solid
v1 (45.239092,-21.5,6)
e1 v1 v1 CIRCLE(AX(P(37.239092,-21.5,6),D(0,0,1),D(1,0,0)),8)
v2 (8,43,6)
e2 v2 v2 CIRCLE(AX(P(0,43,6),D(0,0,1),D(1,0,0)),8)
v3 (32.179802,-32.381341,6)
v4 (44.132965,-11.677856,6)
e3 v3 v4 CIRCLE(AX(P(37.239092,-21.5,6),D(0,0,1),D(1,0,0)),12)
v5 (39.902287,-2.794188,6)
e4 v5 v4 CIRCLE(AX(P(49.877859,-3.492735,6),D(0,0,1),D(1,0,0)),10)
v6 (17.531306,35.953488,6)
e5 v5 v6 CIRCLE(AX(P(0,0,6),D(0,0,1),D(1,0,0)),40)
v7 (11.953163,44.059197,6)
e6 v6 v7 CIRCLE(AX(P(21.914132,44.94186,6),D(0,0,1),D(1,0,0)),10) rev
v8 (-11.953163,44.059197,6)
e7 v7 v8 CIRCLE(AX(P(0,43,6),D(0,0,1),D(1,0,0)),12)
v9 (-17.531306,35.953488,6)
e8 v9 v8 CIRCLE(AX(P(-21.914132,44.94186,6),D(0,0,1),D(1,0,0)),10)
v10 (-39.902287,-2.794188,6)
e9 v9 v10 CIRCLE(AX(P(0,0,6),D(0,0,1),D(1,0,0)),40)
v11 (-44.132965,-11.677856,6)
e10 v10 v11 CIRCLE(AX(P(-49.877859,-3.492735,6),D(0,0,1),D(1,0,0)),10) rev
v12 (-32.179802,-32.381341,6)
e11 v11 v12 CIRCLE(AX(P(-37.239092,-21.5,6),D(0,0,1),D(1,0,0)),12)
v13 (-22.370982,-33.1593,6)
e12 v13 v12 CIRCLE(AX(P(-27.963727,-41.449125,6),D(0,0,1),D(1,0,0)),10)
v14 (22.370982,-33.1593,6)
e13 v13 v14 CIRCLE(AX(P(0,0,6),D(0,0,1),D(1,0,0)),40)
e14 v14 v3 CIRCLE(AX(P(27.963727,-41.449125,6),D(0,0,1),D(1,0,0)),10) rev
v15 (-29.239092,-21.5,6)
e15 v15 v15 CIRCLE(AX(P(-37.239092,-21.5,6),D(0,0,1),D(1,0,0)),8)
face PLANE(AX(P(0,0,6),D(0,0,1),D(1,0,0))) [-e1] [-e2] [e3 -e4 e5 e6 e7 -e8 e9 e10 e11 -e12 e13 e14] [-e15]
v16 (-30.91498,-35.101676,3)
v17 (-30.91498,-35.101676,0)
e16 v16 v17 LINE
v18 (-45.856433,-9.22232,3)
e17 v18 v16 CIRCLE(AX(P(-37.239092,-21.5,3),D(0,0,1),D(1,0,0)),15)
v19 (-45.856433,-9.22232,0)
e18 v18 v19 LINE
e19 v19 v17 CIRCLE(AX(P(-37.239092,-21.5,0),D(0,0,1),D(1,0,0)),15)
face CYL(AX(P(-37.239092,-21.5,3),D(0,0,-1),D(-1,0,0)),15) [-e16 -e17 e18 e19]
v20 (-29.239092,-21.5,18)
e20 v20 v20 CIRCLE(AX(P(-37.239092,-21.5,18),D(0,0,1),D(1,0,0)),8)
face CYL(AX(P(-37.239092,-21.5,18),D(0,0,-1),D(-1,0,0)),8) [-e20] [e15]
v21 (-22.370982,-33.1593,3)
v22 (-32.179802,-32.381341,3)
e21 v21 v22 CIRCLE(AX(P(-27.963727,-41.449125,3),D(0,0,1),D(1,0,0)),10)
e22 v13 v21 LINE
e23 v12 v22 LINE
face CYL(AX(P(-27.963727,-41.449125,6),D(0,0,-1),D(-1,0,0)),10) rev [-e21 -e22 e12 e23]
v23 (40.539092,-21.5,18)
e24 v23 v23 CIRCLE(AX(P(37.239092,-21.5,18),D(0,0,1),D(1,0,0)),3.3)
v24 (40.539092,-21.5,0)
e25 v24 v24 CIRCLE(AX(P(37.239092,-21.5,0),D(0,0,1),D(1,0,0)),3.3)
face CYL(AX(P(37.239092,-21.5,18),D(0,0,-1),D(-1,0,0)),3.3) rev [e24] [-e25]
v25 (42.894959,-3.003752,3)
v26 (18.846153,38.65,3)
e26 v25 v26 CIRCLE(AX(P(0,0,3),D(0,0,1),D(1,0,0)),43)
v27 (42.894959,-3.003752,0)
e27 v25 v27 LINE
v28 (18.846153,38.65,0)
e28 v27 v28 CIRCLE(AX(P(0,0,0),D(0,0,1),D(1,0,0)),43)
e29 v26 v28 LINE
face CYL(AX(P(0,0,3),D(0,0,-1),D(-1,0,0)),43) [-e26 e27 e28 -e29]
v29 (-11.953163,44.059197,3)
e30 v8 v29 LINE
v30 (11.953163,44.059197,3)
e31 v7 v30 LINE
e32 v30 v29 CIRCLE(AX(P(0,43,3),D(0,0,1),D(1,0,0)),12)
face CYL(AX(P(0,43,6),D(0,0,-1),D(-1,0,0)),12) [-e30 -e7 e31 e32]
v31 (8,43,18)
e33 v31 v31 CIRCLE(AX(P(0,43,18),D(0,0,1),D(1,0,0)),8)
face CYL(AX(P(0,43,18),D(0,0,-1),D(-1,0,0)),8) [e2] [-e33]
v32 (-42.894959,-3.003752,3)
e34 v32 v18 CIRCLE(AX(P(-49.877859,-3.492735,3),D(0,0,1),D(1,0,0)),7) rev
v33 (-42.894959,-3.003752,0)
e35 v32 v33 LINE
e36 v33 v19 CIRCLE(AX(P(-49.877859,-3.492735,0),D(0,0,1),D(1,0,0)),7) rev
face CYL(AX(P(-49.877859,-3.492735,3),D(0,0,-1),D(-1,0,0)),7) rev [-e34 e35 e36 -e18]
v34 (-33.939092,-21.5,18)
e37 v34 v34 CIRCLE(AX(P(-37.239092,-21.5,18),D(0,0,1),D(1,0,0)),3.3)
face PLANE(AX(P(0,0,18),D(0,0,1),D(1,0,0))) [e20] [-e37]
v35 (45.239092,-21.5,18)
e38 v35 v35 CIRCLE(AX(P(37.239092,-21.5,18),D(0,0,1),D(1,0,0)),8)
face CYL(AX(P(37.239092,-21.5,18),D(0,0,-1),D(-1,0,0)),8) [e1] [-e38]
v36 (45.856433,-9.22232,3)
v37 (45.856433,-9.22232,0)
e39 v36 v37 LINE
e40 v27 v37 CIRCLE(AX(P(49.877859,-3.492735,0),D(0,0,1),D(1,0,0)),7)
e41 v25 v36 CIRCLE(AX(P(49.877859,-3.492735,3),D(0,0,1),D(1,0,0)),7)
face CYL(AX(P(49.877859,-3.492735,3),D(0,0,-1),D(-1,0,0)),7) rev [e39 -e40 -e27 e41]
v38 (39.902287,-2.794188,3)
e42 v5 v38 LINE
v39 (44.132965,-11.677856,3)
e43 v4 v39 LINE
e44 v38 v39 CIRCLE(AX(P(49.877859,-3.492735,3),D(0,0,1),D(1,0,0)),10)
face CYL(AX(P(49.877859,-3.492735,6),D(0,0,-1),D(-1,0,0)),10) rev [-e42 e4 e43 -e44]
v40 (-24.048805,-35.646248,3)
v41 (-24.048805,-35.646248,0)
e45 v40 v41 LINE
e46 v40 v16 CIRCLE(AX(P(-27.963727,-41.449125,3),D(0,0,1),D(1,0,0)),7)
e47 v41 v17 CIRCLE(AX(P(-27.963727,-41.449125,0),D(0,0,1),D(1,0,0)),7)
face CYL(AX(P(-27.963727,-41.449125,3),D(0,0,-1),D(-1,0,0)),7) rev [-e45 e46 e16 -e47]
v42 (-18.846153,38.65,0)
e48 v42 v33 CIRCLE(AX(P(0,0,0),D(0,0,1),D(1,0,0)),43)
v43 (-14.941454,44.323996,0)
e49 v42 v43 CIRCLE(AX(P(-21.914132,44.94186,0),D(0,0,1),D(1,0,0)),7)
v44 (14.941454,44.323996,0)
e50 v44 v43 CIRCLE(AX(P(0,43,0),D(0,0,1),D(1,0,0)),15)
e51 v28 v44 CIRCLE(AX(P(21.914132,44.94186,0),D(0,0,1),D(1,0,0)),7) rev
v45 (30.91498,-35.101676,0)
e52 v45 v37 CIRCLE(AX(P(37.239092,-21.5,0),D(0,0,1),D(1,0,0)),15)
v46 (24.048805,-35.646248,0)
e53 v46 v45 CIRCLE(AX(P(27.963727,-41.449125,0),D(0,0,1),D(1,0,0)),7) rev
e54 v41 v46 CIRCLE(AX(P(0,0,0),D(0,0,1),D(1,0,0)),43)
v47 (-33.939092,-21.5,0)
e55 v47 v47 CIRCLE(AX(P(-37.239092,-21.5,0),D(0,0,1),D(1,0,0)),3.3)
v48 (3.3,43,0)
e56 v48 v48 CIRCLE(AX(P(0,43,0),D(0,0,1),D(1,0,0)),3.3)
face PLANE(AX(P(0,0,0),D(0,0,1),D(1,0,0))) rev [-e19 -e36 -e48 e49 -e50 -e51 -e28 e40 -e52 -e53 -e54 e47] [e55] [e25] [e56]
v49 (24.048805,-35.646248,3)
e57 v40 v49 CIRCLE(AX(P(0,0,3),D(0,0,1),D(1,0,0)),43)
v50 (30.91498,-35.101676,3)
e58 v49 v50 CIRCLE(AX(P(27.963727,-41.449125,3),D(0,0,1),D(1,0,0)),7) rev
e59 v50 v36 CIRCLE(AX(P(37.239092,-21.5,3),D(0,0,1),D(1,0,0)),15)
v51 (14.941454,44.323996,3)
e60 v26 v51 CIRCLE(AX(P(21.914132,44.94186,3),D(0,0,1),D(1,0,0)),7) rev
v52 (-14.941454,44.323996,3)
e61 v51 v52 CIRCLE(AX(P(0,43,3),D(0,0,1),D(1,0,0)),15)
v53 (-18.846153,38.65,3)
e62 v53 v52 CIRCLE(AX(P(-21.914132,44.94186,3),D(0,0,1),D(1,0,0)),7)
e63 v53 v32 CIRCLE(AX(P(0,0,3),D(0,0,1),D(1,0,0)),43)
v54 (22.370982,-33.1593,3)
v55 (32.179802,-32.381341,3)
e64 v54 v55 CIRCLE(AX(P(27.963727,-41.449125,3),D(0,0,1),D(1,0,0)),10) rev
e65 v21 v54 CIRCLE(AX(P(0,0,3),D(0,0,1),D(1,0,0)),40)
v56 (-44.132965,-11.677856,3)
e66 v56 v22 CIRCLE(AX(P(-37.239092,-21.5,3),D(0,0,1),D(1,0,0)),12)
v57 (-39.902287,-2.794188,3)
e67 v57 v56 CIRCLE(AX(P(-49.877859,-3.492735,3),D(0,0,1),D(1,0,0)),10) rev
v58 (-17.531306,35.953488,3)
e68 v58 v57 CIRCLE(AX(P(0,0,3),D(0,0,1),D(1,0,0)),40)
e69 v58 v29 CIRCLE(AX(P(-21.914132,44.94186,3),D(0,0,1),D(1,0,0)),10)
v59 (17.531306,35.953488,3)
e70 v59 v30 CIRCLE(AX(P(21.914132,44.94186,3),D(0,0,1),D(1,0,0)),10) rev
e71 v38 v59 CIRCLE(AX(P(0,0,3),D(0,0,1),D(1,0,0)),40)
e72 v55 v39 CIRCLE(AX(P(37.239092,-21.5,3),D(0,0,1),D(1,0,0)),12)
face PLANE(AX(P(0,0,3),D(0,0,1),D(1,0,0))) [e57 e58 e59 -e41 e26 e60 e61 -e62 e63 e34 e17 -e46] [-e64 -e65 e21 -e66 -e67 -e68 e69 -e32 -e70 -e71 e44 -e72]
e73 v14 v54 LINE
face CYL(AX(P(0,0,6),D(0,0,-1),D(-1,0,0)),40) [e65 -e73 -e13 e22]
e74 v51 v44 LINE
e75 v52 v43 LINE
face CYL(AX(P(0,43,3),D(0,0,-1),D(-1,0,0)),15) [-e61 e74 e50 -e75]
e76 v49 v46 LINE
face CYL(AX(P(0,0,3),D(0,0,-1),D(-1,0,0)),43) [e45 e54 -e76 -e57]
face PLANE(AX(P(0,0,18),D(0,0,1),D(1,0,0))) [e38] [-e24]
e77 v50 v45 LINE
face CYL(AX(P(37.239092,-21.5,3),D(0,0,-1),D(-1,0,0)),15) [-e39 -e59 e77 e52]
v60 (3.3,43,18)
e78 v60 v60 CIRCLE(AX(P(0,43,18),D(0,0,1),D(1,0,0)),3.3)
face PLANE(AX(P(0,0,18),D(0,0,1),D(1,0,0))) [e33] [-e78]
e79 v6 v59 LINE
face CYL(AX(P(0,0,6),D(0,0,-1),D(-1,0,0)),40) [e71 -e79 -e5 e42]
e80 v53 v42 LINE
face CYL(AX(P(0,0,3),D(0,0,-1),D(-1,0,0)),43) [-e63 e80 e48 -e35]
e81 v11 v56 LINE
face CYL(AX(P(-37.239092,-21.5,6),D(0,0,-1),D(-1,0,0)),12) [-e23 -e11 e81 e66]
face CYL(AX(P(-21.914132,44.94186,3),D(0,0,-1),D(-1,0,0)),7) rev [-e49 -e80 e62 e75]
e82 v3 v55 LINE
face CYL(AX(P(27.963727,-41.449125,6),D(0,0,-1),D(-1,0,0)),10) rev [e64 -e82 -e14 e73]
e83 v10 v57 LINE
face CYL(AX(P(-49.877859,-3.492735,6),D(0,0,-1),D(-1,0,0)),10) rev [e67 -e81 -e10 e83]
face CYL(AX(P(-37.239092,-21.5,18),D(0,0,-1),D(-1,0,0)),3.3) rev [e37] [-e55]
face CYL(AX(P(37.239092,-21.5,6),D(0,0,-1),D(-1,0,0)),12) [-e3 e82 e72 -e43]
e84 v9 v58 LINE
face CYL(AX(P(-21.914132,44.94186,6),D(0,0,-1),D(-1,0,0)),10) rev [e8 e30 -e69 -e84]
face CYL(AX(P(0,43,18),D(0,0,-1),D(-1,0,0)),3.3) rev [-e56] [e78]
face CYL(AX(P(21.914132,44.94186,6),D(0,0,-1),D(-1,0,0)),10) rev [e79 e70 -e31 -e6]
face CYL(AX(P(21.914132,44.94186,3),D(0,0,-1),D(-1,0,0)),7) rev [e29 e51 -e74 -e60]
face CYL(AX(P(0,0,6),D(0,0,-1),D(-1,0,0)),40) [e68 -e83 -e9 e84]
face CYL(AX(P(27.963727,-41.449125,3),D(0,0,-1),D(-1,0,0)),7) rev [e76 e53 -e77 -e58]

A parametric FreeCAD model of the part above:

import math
import FreeCAD as App
import Part
import Sketcher

doc = App.newDocument("Part")
body = doc.addObject("PartDesign::Body", "Body")

sketch1 = body.newObject("Sketcher::SketchObject", "Sketch")
sketch1.AttachmentSupport = (doc.getObject("XY_Plane"), [""])
sketch1.MapMode = "FlatFace"
sketch1.addGeometry(Part.ArcOfCircle(Part.Circle(App.Vector(49.877859, -3.492735, 0), App.Vector(0, 0, 1), 7), math.radians(175.994358), math.radians(234.936119)), False)
sketch1.addGeometry(Part.ArcOfCircle(Part.Circle(App.Vector(0, 0, 0), App.Vector(0, 0, 1), 43), math.radians(-4.005642), math.radians(64.005642)), False)
sketch1.addGeometry(Part.ArcOfCircle(Part.Circle(App.Vector(21.914132, 44.94186, 0), App.Vector(0, 0, 1), 7), math.radians(-174.936119), math.radians(-115.994358)), False)
sketch1.addGeometry(Part.ArcOfCircle(Part.Circle(App.Vector(0, 43, 0), App.Vector(0, 0, 1), 15), math.radians(5.063881), math.radians(174.936119)), False)
sketch1.addGeometry(Part.ArcOfCircle(Part.Circle(App.Vector(-21.914132, 44.94186, 0), App.Vector(0, 0, 1), 7), math.radians(-64.005642), math.radians(-5.063881)), False)
sketch1.addGeometry(Part.ArcOfCircle(Part.Circle(App.Vector(0, 0, 0), App.Vector(0, 0, 1), 43), math.radians(115.994358), math.radians(184.005642)), False)
sketch1.addGeometry(Part.ArcOfCircle(Part.Circle(App.Vector(-49.877859, -3.492735, 0), App.Vector(0, 0, 1), 7), math.radians(-54.936119), math.radians(4.005642)), False)
sketch1.addGeometry(Part.ArcOfCircle(Part.Circle(App.Vector(-37.239092, -21.5, 0), App.Vector(0, 0, 1), 15), math.radians(125.063881), math.radians(294.936119)), False)
sketch1.addGeometry(Part.ArcOfCircle(Part.Circle(App.Vector(-27.963727, -41.449125, 0), App.Vector(0, 0, 1), 7), math.radians(55.994358), math.radians(114.936119)), False)
sketch1.addGeometry(Part.ArcOfCircle(Part.Circle(App.Vector(0, 0, 0), App.Vector(0, 0, 1), 43), math.radians(-124.005642), math.radians(-55.994358)), False)
sketch1.addGeometry(Part.ArcOfCircle(Part.Circle(App.Vector(27.963727, -41.449125, 0), App.Vector(0, 0, 1), 7), math.radians(65.063881), math.radians(124.005642)), False)
sketch1.addGeometry(Part.ArcOfCircle(Part.Circle(App.Vector(37.239092, -21.5, 0), App.Vector(0, 0, 1), 15), math.radians(-114.936119), math.radians(54.936119)), False)
sketch1.addGeometry(Part.ArcOfCircle(Part.Circle(App.Vector(49.877859, -3.492735, 0), App.Vector(0, 0, 1), 10), math.radians(175.994358), math.radians(234.936119)), False)
sketch1.addGeometry(Part.ArcOfCircle(Part.Circle(App.Vector(37.239092, -21.5, 0), App.Vector(0, 0, 1), 12), math.radians(-114.936119), math.radians(54.936119)), False)
sketch1.addGeometry(Part.ArcOfCircle(Part.Circle(App.Vector(27.963727, -41.449125, 0), App.Vector(0, 0, 1), 10), math.radians(65.063881), math.radians(124.005642)), False)
sketch1.addGeometry(Part.ArcOfCircle(Part.Circle(App.Vector(0, 0, 0), App.Vector(0, 0, 1), 40), math.radians(-124.005642), math.radians(-55.994358)), False)
sketch1.addGeometry(Part.ArcOfCircle(Part.Circle(App.Vector(-27.963727, -41.449125, 0), App.Vector(0, 0, 1), 10), math.radians(55.994358), math.radians(114.936119)), False)
sketch1.addGeometry(Part.ArcOfCircle(Part.Circle(App.Vector(-37.239092, -21.5, 0), App.Vector(0, 0, 1), 12), math.radians(125.063881), math.radians(294.936119)), False)
sketch1.addGeometry(Part.ArcOfCircle(Part.Circle(App.Vector(-49.877859, -3.492735, 0), App.Vector(0, 0, 1), 10), math.radians(-54.936119), math.radians(4.005642)), False)
sketch1.addGeometry(Part.ArcOfCircle(Part.Circle(App.Vector(0, 0, 0), App.Vector(0, 0, 1), 40), math.radians(115.994358), math.radians(184.005642)), False)
sketch1.addGeometry(Part.ArcOfCircle(Part.Circle(App.Vector(-21.914132, 44.94186, 0), App.Vector(0, 0, 1), 10), math.radians(-64.005642), math.radians(-5.063881)), False)
sketch1.addGeometry(Part.ArcOfCircle(Part.Circle(App.Vector(0, 43, 0), App.Vector(0, 0, 1), 12), math.radians(5.063881), math.radians(174.936119)), False)
sketch1.addGeometry(Part.ArcOfCircle(Part.Circle(App.Vector(21.914132, 44.94186, 0), App.Vector(0, 0, 1), 10), math.radians(-174.936119), math.radians(-115.994358)), False)
sketch1.addGeometry(Part.ArcOfCircle(Part.Circle(App.Vector(0, 0, 0), App.Vector(0, 0, 1), 40), math.radians(-4.005642), math.radians(64.005642)), False)
sketch1.addConstraint(Sketcher.Constraint("Tangent", 0, 1, 1, 1))
sketch1.addConstraint(Sketcher.Constraint("Tangent", 1, 2, 2, 2))
sketch1.addConstraint(Sketcher.Constraint("Tangent", 2, 1, 3, 1))
sketch1.addConstraint(Sketcher.Constraint("Tangent", 3, 2, 4, 2))
sketch1.addConstraint(Sketcher.Constraint("Tangent", 4, 1, 5, 1))
sketch1.addConstraint(Sketcher.Constraint("Tangent", 5, 2, 6, 2))
sketch1.addConstraint(Sketcher.Constraint("Tangent", 6, 1, 7, 1))
sketch1.addConstraint(Sketcher.Constraint("Tangent", 7, 2, 8, 2))
sketch1.addConstraint(Sketcher.Constraint("Tangent", 8, 1, 9, 1))
sketch1.addConstraint(Sketcher.Constraint("Tangent", 9, 2, 10, 2))
sketch1.addConstraint(Sketcher.Constraint("Tangent", 10, 1, 11, 1))
sketch1.addConstraint(Sketcher.Constraint("Tangent", 11, 2, 0, 2))
sketch1.addConstraint(Sketcher.Constraint("Tangent", 12, 2, 13, 2))
sketch1.addConstraint(Sketcher.Constraint("Tangent", 13, 1, 14, 1))
sketch1.addConstraint(Sketcher.Constraint("Tangent", 14, 2, 15, 2))
sketch1.addConstraint(Sketcher.Constraint("Tangent", 15, 1, 16, 1))
sketch1.addConstraint(Sketcher.Constraint("Tangent", 16, 2, 17, 2))
sketch1.addConstraint(Sketcher.Constraint("Tangent", 17, 1, 18, 1))
sketch1.addConstraint(Sketcher.Constraint("Tangent", 18, 2, 19, 2))
sketch1.addConstraint(Sketcher.Constraint("Tangent", 19, 1, 20, 1))
sketch1.addConstraint(Sketcher.Constraint("Tangent", 20, 2, 21, 2))
sketch1.addConstraint(Sketcher.Constraint("Tangent", 21, 1, 22, 1))
sketch1.addConstraint(Sketcher.Constraint("Tangent", 22, 2, 23, 2))
sketch1.addConstraint(Sketcher.Constraint("Tangent", 23, 1, 12, 1))
sketch1.addConstraint(Sketcher.Constraint("Coincident", 1, 3, -1, 1))
sketch1.addConstraint(Sketcher.Constraint("Coincident", 5, 3, -1, 1))
sketch1.addConstraint(Sketcher.Constraint("Coincident", 9, 3, -1, 1))
sketch1.addConstraint(Sketcher.Constraint("Coincident", 15, 3, -1, 1))
sketch1.addConstraint(Sketcher.Constraint("Coincident", 19, 3, -1, 1))
sketch1.addConstraint(Sketcher.Constraint("Coincident", 23, 3, -1, 1))
sketch1.addConstraint(Sketcher.Constraint("Coincident", 12, 3, 0, 3))
sketch1.addConstraint(Sketcher.Constraint("Coincident", 13, 3, 11, 3))
sketch1.addConstraint(Sketcher.Constraint("Coincident", 14, 3, 10, 3))
sketch1.addConstraint(Sketcher.Constraint("Coincident", 16, 3, 8, 3))
sketch1.addConstraint(Sketcher.Constraint("Coincident", 17, 3, 7, 3))
sketch1.addConstraint(Sketcher.Constraint("Coincident", 18, 3, 6, 3))
sketch1.addConstraint(Sketcher.Constraint("Coincident", 20, 3, 4, 3))
sketch1.addConstraint(Sketcher.Constraint("Coincident", 21, 3, 3, 3))
sketch1.addConstraint(Sketcher.Constraint("Equal", 0, 2))
sketch1.addConstraint(Sketcher.Constraint("Equal", 2, 4))
sketch1.addConstraint(Sketcher.Constraint("Equal", 1, 5))
sketch1.addConstraint(Sketcher.Constraint("Equal", 4, 6))
sketch1.addConstraint(Sketcher.Constraint("Equal", 3, 7))
sketch1.addConstraint(Sketcher.Constraint("Equal", 6, 8))
sketch1.addConstraint(Sketcher.Constraint("Equal", 5, 9))
sketch1.addConstraint(Sketcher.Constraint("Equal", 8, 10))
sketch1.addConstraint(Sketcher.Constraint("Equal", 7, 11))
sketch1.addConstraint(Sketcher.Constraint("Equal", 20, 22))
sketch1.addConstraint(Sketcher.Constraint("Symmetric", 7, 3, 11, 3, -2))
sketch1.addConstraint(Sketcher.Constraint("PointOnObject", 3, 3, -2))
sketch1.addConstraint(Sketcher.Constraint("Radius", 0, 7.0))
sketch1.addConstraint(Sketcher.Constraint("Radius", 1, 43.0))
sketch1.addConstraint(Sketcher.Constraint("Radius", 3, 15.0))
sketch1.addConstraint(Sketcher.Constraint("Radius", 12, 10.0))
sketch1.addConstraint(Sketcher.Constraint("DistanceY", -1, 1, 3, 3, 43.0))
sketch1.addConstraint(Sketcher.Constraint("DistanceY", 7, 3, -1, 1, 21.5))
sketch1.addConstraint(Sketcher.Constraint("DistanceX", 14, 2, 10, 1, 8.543998))
pad1 = body.newObject("PartDesign::Pad", "Pad")
pad1.Profile = sketch1
pad1.Length = 3

sketch2 = body.newObject("Sketcher::SketchObject", "Sketch001")
sketch2.AttachmentSupport = (doc.getObject("XY_Plane"), [""])
sketch2.MapMode = "FlatFace"
sketch2.addGeometry(Part.ArcOfCircle(Part.Circle(App.Vector(49.877859, -3.492735, 0), App.Vector(0, 0, 1), 10), math.radians(175.994358), math.radians(234.936119)), False)
sketch2.addGeometry(Part.ArcOfCircle(Part.Circle(App.Vector(0, 0, 0), App.Vector(0, 0, 1), 40), math.radians(-4.005642), math.radians(64.005642)), False)
sketch2.addGeometry(Part.ArcOfCircle(Part.Circle(App.Vector(21.914132, 44.94186, 0), App.Vector(0, 0, 1), 10), math.radians(-174.936119), math.radians(-115.994358)), False)
sketch2.addGeometry(Part.ArcOfCircle(Part.Circle(App.Vector(0, 43, 0), App.Vector(0, 0, 1), 12), math.radians(5.063881), math.radians(174.936119)), False)
sketch2.addGeometry(Part.ArcOfCircle(Part.Circle(App.Vector(-21.914132, 44.94186, 0), App.Vector(0, 0, 1), 10), math.radians(-64.005642), math.radians(-5.063881)), False)
sketch2.addGeometry(Part.ArcOfCircle(Part.Circle(App.Vector(0, 0, 0), App.Vector(0, 0, 1), 40), math.radians(115.994358), math.radians(184.005642)), False)
sketch2.addGeometry(Part.ArcOfCircle(Part.Circle(App.Vector(-49.877859, -3.492735, 0), App.Vector(0, 0, 1), 10), math.radians(-54.936119), math.radians(4.005642)), False)
sketch2.addGeometry(Part.ArcOfCircle(Part.Circle(App.Vector(-37.239092, -21.5, 0), App.Vector(0, 0, 1), 12), math.radians(125.063881), math.radians(294.936119)), False)
sketch2.addGeometry(Part.ArcOfCircle(Part.Circle(App.Vector(-27.963727, -41.449125, 0), App.Vector(0, 0, 1), 10), math.radians(55.994358), math.radians(114.936119)), False)
sketch2.addGeometry(Part.ArcOfCircle(Part.Circle(App.Vector(0, 0, 0), App.Vector(0, 0, 1), 40), math.radians(-124.005642), math.radians(-55.994358)), False)
sketch2.addGeometry(Part.ArcOfCircle(Part.Circle(App.Vector(27.963727, -41.449125, 0), App.Vector(0, 0, 1), 10), math.radians(65.063881), math.radians(124.005642)), False)
sketch2.addGeometry(Part.ArcOfCircle(Part.Circle(App.Vector(37.239092, -21.5, 0), App.Vector(0, 0, 1), 12), math.radians(-114.936119), math.radians(54.936119)), False)
sketch2.addGeometry(Part.Circle(App.Vector(37.239092, -21.5, 0), App.Vector(0, 0, 1), 8), False)
sketch2.addGeometry(Part.Circle(App.Vector(-37.239092, -21.5, 0), App.Vector(0, 0, 1), 8), False)
sketch2.addGeometry(Part.Circle(App.Vector(0, 43, 0), App.Vector(0, 0, 1), 8), False)
sketch2.addConstraint(Sketcher.Constraint("Tangent", 0, 1, 1, 1))
sketch2.addConstraint(Sketcher.Constraint("Tangent", 1, 2, 2, 2))
sketch2.addConstraint(Sketcher.Constraint("Tangent", 2, 1, 3, 1))
sketch2.addConstraint(Sketcher.Constraint("Tangent", 3, 2, 4, 2))
sketch2.addConstraint(Sketcher.Constraint("Tangent", 4, 1, 5, 1))
sketch2.addConstraint(Sketcher.Constraint("Tangent", 5, 2, 6, 2))
sketch2.addConstraint(Sketcher.Constraint("Tangent", 6, 1, 7, 1))
sketch2.addConstraint(Sketcher.Constraint("Tangent", 7, 2, 8, 2))
sketch2.addConstraint(Sketcher.Constraint("Tangent", 8, 1, 9, 1))
sketch2.addConstraint(Sketcher.Constraint("Tangent", 9, 2, 10, 2))
sketch2.addConstraint(Sketcher.Constraint("Tangent", 10, 1, 11, 1))
sketch2.addConstraint(Sketcher.Constraint("Tangent", 11, 2, 0, 2))
sketch2.addConstraint(Sketcher.Constraint("Coincident", 1, 3, -1, 1))
sketch2.addConstraint(Sketcher.Constraint("Coincident", 5, 3, -1, 1))
sketch2.addConstraint(Sketcher.Constraint("Coincident", 9, 3, -1, 1))
sketch2.addConstraint(Sketcher.Constraint("Coincident", 12, 3, 11, 3))
sketch2.addConstraint(Sketcher.Constraint("Coincident", 13, 3, 7, 3))
sketch2.addConstraint(Sketcher.Constraint("Coincident", 14, 3, 3, 3))
sketch2.addConstraint(Sketcher.Constraint("Equal", 0, 2))
sketch2.addConstraint(Sketcher.Constraint("Equal", 2, 4))
sketch2.addConstraint(Sketcher.Constraint("Equal", 1, 5))
sketch2.addConstraint(Sketcher.Constraint("Equal", 4, 6))
sketch2.addConstraint(Sketcher.Constraint("Equal", 3, 7))
sketch2.addConstraint(Sketcher.Constraint("Equal", 6, 8))
sketch2.addConstraint(Sketcher.Constraint("Equal", 5, 9))
sketch2.addConstraint(Sketcher.Constraint("Equal", 8, 10))
sketch2.addConstraint(Sketcher.Constraint("Equal", 7, 11))
sketch2.addConstraint(Sketcher.Constraint("Equal", 12, 13))
sketch2.addConstraint(Sketcher.Constraint("Equal", 13, 14))
sketch2.addConstraint(Sketcher.Constraint("Symmetric", 7, 3, 11, 3, -2))
sketch2.addConstraint(Sketcher.Constraint("PointOnObject", 3, 3, -2))
sketch2.addConstraint(Sketcher.Constraint("Diameter", 12, 16.0))
sketch2.addConstraint(Sketcher.Constraint("Radius", 0, 10.0))
sketch2.addConstraint(Sketcher.Constraint("Radius", 1, 40.0))
sketch2.addConstraint(Sketcher.Constraint("Radius", 3, 12.0))
sketch2.addConstraint(Sketcher.Constraint("DistanceY", -1, 1, 3, 3, 43.0))
sketch2.addConstraint(Sketcher.Constraint("DistanceY", 7, 3, -1, 1, 21.5))
sketch2.addConstraint(Sketcher.Constraint("DistanceY", 8, 1, -1, 1, 33.1593))
pad2 = body.newObject("PartDesign::Pad", "Pad001")
pad2.Profile = sketch2
pad2.Length = 6

sketch3 = body.newObject("Sketcher::SketchObject", "Sketch002")
sketch3.AttachmentSupport = (doc.getObject("XY_Plane"), [""])
sketch3.MapMode = "FlatFace"
sketch3.addGeometry(Part.Circle(App.Vector(37.239092, -21.5, 0), App.Vector(0, 0, 1), 8), False)
sketch3.addGeometry(Part.Circle(App.Vector(37.239092, -21.5, 0), App.Vector(0, 0, 1), 3.3), False)
sketch3.addGeometry(Part.Circle(App.Vector(-37.239092, -21.5, 0), App.Vector(0, 0, 1), 8), False)
sketch3.addGeometry(Part.Circle(App.Vector(-37.239092, -21.5, 0), App.Vector(0, 0, 1), 3.3), False)
sketch3.addGeometry(Part.Circle(App.Vector(0, 43, 0), App.Vector(0, 0, 1), 8), False)
sketch3.addGeometry(Part.Circle(App.Vector(0, 43, 0), App.Vector(0, 0, 1), 3.3), False)
sketch3.addConstraint(Sketcher.Constraint("Coincident", 1, 3, 0, 3))
sketch3.addConstraint(Sketcher.Constraint("Coincident", 3, 3, 2, 3))
sketch3.addConstraint(Sketcher.Constraint("Coincident", 5, 3, 4, 3))
sketch3.addConstraint(Sketcher.Constraint("Equal", 0, 2))
sketch3.addConstraint(Sketcher.Constraint("Equal", 1, 3))
sketch3.addConstraint(Sketcher.Constraint("Equal", 2, 4))
sketch3.addConstraint(Sketcher.Constraint("Equal", 3, 5))
sketch3.addConstraint(Sketcher.Constraint("Symmetric", 0, 3, 2, 3, -2))
sketch3.addConstraint(Sketcher.Constraint("PointOnObject", 4, 3, -2))
sketch3.addConstraint(Sketcher.Constraint("Diameter", 0, 16.0))
sketch3.addConstraint(Sketcher.Constraint("Diameter", 1, 6.6))
sketch3.addConstraint(Sketcher.Constraint("DistanceY", -1, 1, 4, 3, 43.0))
sketch3.addConstraint(Sketcher.Constraint("DistanceY", 0, 3, -1, 1, 21.5))
sketch3.addConstraint(Sketcher.Constraint("DistanceX", -1, 1, 0, 3, 37.239092))
pad3 = body.newObject("PartDesign::Pad", "Pad002")
pad3.Profile = sketch3
pad3.Length = 18

doc.recompute()
